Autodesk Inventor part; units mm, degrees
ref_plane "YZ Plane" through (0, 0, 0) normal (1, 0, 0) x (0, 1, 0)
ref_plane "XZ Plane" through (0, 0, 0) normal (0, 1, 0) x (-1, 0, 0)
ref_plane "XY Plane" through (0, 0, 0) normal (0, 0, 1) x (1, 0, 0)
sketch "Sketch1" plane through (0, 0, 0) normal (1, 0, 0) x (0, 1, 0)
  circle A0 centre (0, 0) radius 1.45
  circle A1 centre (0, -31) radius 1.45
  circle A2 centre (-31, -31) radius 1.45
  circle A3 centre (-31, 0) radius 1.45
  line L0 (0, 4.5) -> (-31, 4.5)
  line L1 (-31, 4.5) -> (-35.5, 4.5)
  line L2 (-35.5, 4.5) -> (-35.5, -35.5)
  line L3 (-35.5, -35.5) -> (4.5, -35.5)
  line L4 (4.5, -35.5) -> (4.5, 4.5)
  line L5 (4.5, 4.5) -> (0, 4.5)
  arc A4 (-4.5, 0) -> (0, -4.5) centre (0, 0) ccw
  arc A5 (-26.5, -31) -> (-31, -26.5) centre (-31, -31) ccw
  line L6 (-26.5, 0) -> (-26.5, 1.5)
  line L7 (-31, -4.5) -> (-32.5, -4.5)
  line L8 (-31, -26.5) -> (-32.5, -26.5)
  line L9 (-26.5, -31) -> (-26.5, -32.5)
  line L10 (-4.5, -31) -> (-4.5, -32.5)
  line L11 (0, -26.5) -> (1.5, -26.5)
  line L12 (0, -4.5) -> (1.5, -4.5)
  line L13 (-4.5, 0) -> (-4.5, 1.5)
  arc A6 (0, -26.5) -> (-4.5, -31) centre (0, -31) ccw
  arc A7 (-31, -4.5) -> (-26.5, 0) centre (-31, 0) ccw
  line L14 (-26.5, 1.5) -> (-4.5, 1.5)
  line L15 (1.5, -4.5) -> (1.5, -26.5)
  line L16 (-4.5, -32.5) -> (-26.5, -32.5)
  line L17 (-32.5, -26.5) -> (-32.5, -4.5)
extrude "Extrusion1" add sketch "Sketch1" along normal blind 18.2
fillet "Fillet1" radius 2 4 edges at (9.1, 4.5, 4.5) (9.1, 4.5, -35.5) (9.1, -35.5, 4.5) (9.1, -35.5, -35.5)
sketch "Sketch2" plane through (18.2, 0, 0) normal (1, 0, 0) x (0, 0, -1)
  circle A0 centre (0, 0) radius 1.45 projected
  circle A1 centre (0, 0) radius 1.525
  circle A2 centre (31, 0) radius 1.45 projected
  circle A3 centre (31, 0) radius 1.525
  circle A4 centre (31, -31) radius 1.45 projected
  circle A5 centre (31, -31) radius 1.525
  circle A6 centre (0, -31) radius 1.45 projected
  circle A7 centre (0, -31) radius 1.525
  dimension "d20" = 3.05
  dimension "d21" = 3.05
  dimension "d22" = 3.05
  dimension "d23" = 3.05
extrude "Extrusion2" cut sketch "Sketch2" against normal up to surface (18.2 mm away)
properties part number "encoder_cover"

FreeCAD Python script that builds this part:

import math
import FreeCAD as App
import Part
import Sketcher
from FreeCAD import Vector
Q = App.Units.Quantity


def edges_at(feature, points):
    """Names of the edges that pass closest to the given points."""
    edges = feature.Shape.Edges
    near = lambda p: min(range(len(edges)), key=lambda i: edges[i].distToShape(Part.Vertex(*p))[0])
    return sorted({f"Edge{near(p) + 1}" for p in points})


def add_polygon(sketch, points):
    """Adds a closed chain of lines whose ends are joined by coincident constraints."""
    first, n = sketch.GeometryCount, len(points)
    for a, b in zip(points, points[1:] + points[:1]):
        sketch.addGeometry(Part.LineSegment(App.Vector(*a, 0), App.Vector(*b, 0)), False)
    for i in range(n):
        sketch.addConstraint(Sketcher.Constraint("Coincident", first + i, 2, first + (i + 1) % n, 1))

doc = App.newDocument("Part")
body = doc.addObject("PartDesign::Body", "Body")

# Sketch on YZ plane
sketch1 = body.newObject("Sketcher::SketchObject", "Sketch")
sketch1.AttachmentSupport = (doc.getObject("YZ_Plane"), [""])
sketch1.MapMode = "FlatFace"
add_polygon(sketch1, [(4.5, 4.5), (-35.5, 4.5), (-35.5, -35.5), (4.5, -35.5)])  # lines 0-3
sketch1.addGeometry(Part.Circle(Vector(-31, -31, 0), Vector(0, 0, 1), 1.4), False)  # 4
sketch1.addGeometry(Part.Circle(Vector(0, -31, 0), Vector(0, 0, 1), 1.4), False)  # 5
sketch1.addGeometry(Part.Circle(Vector(-31, 0, 0), Vector(0, 0, 1), 1.4), False)  # 6
sketch1.addGeometry(Part.LineSegment(Vector(-4.5, 1.5, 0), Vector(-4.5, 0, 0)), False)  # 7
sketch1.addGeometry(Part.ArcOfCircle(Part.Circle(Vector(0, 0, 0), Vector(0, 0, 1), 4.5), math.radians(180), math.radians(270)), False)  # 8
sketch1.addGeometry(Part.LineSegment(Vector(0, -4.5, 0), Vector(1.5, -4.5, 0)), False)  # 9
sketch1.addGeometry(Part.LineSegment(Vector(1.5, -4.5, 0), Vector(1.5, -26.5, 0)), False)  # 10
sketch1.addGeometry(Part.LineSegment(Vector(1.5, -26.5, 0), Vector(0, -26.5, 0)), False)  # 11
sketch1.addGeometry(Part.ArcOfCircle(Part.Circle(Vector(0, -31, 0), Vector(0, 0, 1), 4.5), math.radians(90), math.radians(180)), False)  # 12
sketch1.addGeometry(Part.LineSegment(Vector(-4.5, -31, 0), Vector(-4.5, -32.5, 0)), False)  # 13
sketch1.addGeometry(Part.LineSegment(Vector(-4.5, -32.5, 0), Vector(-26.5, -32.5, 0)), False)  # 14
sketch1.addGeometry(Part.LineSegment(Vector(-26.5, -32.5, 0), Vector(-26.5, -31, 0)), False)  # 15
sketch1.addGeometry(Part.ArcOfCircle(Part.Circle(Vector(-31, -31, 0), Vector(0, 0, 1), 4.5), math.radians(0), math.radians(90)), False)  # 16
sketch1.addGeometry(Part.LineSegment(Vector(-31, -26.5, 0), Vector(-32.5, -26.5, 0)), False)  # 17
sketch1.addGeometry(Part.LineSegment(Vector(-32.5, -26.5, 0), Vector(-32.5, -4.5, 0)), False)  # 18
sketch1.addGeometry(Part.LineSegment(Vector(-32.5, -4.5, 0), Vector(-31, -4.5, 0)), False)  # 19
sketch1.addGeometry(Part.ArcOfCircle(Part.Circle(Vector(-31, 0, 0), Vector(0, 0, 1), 4.5), math.radians(-90), math.radians(0)), False)  # 20
sketch1.addGeometry(Part.LineSegment(Vector(-26.5, 0, 0), Vector(-26.5, 1.5, 0)), False)  # 21
sketch1.addGeometry(Part.LineSegment(Vector(-26.5, 1.5, 0), Vector(-4.5, 1.5, 0)), False)  # 22
sketch1.addGeometry(Part.Circle(Vector(0, 0, 0), Vector(0, 0, 1), 1.4), False)  # 23
sketch1.addConstraint([
    Sketcher.Constraint("Tangent", 7, 2, 8, 1),
    Sketcher.Constraint("Tangent", 8, 2, 9, 1),
    Sketcher.Constraint("Coincident", 9, 2, 10, 1),
    Sketcher.Constraint("Coincident", 10, 2, 11, 1),
    Sketcher.Constraint("Tangent", 11, 2, 12, 1),
    Sketcher.Constraint("Tangent", 12, 2, 13, 1),
    Sketcher.Constraint("Coincident", 13, 2, 14, 1),
    Sketcher.Constraint("Coincident", 14, 2, 15, 1),
    Sketcher.Constraint("Tangent", 15, 2, 16, 1),
    Sketcher.Constraint("Tangent", 16, 2, 17, 1),
    Sketcher.Constraint("Coincident", 17, 2, 18, 1),
    Sketcher.Constraint("Coincident", 18, 2, 19, 1),
    Sketcher.Constraint("Tangent", 19, 2, 20, 1),
    Sketcher.Constraint("Tangent", 20, 2, 21, 1),
    Sketcher.Constraint("Coincident", 21, 2, 22, 1),
    Sketcher.Constraint("Coincident", 22, 2, 7, 1),
    Sketcher.Constraint("Horizontal", 0),
    Sketcher.Constraint("Vertical", 1),
    Sketcher.Constraint("Horizontal", 2),
    Sketcher.Constraint("Vertical", 3),
    Sketcher.Constraint("Vertical", 7),
    Sketcher.Constraint("Horizontal", 9),
    Sketcher.Constraint("Vertical", 10),
    Sketcher.Constraint("Horizontal", 11),
    Sketcher.Constraint("Vertical", 13),
    Sketcher.Constraint("Horizontal", 14),
    Sketcher.Constraint("Vertical", 15),
    Sketcher.Constraint("Horizontal", 17),
    Sketcher.Constraint("Vertical", 18),
    Sketcher.Constraint("Horizontal", 19),
    Sketcher.Constraint("Vertical", 21),
    Sketcher.Constraint("Horizontal", 22),
    Sketcher.Constraint("Coincident", 8, 3, -1, 1),
    Sketcher.Constraint("Coincident", 23, 3, -1, 1),
    Sketcher.Constraint("Coincident", 12, 3, 5, 3),
    Sketcher.Constraint("Coincident", 16, 3, 4, 3),
    Sketcher.Constraint("Coincident", 20, 3, 6, 3),
    Sketcher.Constraint("Equal", 4, 5),
    Sketcher.Constraint("Equal", 5, 6),
    Sketcher.Constraint("Equal", 8, 12),
    Sketcher.Constraint("Equal", 12, 16),
    Sketcher.Constraint("Equal", 16, 20),
    Sketcher.Constraint("Equal", 6, 23),
    Sketcher.Constraint("PointOnObject", 5, 3, -2),
    Sketcher.Constraint("PointOnObject", 6, 3, -1),
    Sketcher.Constraint("Horizontal", 4, 3, 5, 3),
    Sketcher.Constraint("Vertical", 4, 3, 6, 3),
    Sketcher.Constraint("Equal", 11, 17),
    Sketcher.Constraint("Equal", 2, 1),
    Sketcher.Constraint("Equal", 19, 7),
    Sketcher.Constraint("Equal", 22, 10),
    Sketcher.Constraint("Equal", 7, 13),
    Sketcher.Constraint("Diameter", 4, Q("2.9 mm")),
    Sketcher.Constraint("Radius", 8, Q("4.5 mm")),
    Sketcher.Constraint("DistanceX", 0, 2, 0, 1, Q("40 mm")),
    Sketcher.Constraint("DistanceX", 14, 2, 14, 1, Q("22 mm")),
    Sketcher.Constraint("DistanceX", 9, 1, 9, 2, Q("1.5 mm")),
    Sketcher.Constraint("DistanceX", 7, 2, 3, 2, Q("9 mm")),
    Sketcher.Constraint("DistanceY", 8, 2, 3, 2, Q("9 mm")),
])
pad1 = body.newObject("PartDesign::Pad", "Pad")
pad1.Profile = sketch1
pad1.Length = 18.2
doc.recompute()

fillet = body.newObject("PartDesign::Fillet", "Fillet")
fillet.Base = (pad1, edges_at(pad1, [
    (9.1, 4.5, 4.5),
    (9.1, 4.5, -35.5),
    (9.1, -35.5, 4.5),
    (9.1, -35.5, -35.5),
]))
fillet.Radius = 2

# Sketch on YZ plane
sketch2 = body.newObject("Sketcher::SketchObject", "Sketch001")
sketch2.AttachmentSupport = (doc.getObject("YZ_Plane"), [""])
sketch2.MapMode = "FlatFace"
sketch2.AttachmentOffset = App.Placement(Vector(0, 0, 18.2), App.Rotation())
sketch2.addGeometry([
    Part.Circle(Vector(0, 0, 0), Vector(0, 0, 1), 1.5),  # 0
    Part.Circle(Vector(0, 0, 0), Vector(0, 0, 1), 1.4),  # 1
    Part.Circle(Vector(0, -31, 0), Vector(0, 0, 1), 1.5),  # 2
    Part.Circle(Vector(0, -31, 0), Vector(0, 0, 1), 1.4),  # 3
    Part.Circle(Vector(-31, -31, 0), Vector(0, 0, 1), 1.5),  # 4
    Part.Circle(Vector(-31, -31, 0), Vector(0, 0, 1), 1.4),  # 5
    Part.Circle(Vector(-31, 0, 0), Vector(0, 0, 1), 1.5),  # 6
    Part.Circle(Vector(-31, 0, 0), Vector(0, 0, 1), 1.4),  # 7
], False)
sketch2.addConstraint([
    Sketcher.Constraint("Coincident", 0, 3, -1, 1),
    Sketcher.Constraint("Coincident", 1, 3, -1, 1),
    Sketcher.Constraint("Coincident", 3, 3, 2, 3),
    Sketcher.Constraint("Coincident", 5, 3, 4, 3),
    Sketcher.Constraint("Coincident", 7, 3, 6, 3),
    Sketcher.Constraint("Equal", 0, 2),
    Sketcher.Constraint("Equal", 1, 3),
    Sketcher.Constraint("Equal", 2, 4),
    Sketcher.Constraint("Equal", 3, 5),
    Sketcher.Constraint("Equal", 4, 6),
    Sketcher.Constraint("Equal", 5, 7),
    Sketcher.Constraint("PointOnObject", 2, 3, -2),
    Sketcher.Constraint("PointOnObject", 6, 3, -1),
    Sketcher.Constraint("Horizontal", 3, 3, 4, 3),
    Sketcher.Constraint("Vertical", 5, 3, 6, 3),
    Sketcher.Constraint("Diameter", 0, Q("3.05 mm")),
    Sketcher.Constraint("Diameter", 1, Q("2.9 mm")),
    Sketcher.Constraint("DistanceY", 2, 3, -1, 1, Q("31 mm")),
    Sketcher.Constraint("DistanceX", 4, 3, -1, 1, Q("31 mm")),
])
pocket1 = body.newObject("PartDesign::Pocket", "Pocket")
pocket1.Profile = sketch2
pocket1.Length = 18.2

doc.recompute()
